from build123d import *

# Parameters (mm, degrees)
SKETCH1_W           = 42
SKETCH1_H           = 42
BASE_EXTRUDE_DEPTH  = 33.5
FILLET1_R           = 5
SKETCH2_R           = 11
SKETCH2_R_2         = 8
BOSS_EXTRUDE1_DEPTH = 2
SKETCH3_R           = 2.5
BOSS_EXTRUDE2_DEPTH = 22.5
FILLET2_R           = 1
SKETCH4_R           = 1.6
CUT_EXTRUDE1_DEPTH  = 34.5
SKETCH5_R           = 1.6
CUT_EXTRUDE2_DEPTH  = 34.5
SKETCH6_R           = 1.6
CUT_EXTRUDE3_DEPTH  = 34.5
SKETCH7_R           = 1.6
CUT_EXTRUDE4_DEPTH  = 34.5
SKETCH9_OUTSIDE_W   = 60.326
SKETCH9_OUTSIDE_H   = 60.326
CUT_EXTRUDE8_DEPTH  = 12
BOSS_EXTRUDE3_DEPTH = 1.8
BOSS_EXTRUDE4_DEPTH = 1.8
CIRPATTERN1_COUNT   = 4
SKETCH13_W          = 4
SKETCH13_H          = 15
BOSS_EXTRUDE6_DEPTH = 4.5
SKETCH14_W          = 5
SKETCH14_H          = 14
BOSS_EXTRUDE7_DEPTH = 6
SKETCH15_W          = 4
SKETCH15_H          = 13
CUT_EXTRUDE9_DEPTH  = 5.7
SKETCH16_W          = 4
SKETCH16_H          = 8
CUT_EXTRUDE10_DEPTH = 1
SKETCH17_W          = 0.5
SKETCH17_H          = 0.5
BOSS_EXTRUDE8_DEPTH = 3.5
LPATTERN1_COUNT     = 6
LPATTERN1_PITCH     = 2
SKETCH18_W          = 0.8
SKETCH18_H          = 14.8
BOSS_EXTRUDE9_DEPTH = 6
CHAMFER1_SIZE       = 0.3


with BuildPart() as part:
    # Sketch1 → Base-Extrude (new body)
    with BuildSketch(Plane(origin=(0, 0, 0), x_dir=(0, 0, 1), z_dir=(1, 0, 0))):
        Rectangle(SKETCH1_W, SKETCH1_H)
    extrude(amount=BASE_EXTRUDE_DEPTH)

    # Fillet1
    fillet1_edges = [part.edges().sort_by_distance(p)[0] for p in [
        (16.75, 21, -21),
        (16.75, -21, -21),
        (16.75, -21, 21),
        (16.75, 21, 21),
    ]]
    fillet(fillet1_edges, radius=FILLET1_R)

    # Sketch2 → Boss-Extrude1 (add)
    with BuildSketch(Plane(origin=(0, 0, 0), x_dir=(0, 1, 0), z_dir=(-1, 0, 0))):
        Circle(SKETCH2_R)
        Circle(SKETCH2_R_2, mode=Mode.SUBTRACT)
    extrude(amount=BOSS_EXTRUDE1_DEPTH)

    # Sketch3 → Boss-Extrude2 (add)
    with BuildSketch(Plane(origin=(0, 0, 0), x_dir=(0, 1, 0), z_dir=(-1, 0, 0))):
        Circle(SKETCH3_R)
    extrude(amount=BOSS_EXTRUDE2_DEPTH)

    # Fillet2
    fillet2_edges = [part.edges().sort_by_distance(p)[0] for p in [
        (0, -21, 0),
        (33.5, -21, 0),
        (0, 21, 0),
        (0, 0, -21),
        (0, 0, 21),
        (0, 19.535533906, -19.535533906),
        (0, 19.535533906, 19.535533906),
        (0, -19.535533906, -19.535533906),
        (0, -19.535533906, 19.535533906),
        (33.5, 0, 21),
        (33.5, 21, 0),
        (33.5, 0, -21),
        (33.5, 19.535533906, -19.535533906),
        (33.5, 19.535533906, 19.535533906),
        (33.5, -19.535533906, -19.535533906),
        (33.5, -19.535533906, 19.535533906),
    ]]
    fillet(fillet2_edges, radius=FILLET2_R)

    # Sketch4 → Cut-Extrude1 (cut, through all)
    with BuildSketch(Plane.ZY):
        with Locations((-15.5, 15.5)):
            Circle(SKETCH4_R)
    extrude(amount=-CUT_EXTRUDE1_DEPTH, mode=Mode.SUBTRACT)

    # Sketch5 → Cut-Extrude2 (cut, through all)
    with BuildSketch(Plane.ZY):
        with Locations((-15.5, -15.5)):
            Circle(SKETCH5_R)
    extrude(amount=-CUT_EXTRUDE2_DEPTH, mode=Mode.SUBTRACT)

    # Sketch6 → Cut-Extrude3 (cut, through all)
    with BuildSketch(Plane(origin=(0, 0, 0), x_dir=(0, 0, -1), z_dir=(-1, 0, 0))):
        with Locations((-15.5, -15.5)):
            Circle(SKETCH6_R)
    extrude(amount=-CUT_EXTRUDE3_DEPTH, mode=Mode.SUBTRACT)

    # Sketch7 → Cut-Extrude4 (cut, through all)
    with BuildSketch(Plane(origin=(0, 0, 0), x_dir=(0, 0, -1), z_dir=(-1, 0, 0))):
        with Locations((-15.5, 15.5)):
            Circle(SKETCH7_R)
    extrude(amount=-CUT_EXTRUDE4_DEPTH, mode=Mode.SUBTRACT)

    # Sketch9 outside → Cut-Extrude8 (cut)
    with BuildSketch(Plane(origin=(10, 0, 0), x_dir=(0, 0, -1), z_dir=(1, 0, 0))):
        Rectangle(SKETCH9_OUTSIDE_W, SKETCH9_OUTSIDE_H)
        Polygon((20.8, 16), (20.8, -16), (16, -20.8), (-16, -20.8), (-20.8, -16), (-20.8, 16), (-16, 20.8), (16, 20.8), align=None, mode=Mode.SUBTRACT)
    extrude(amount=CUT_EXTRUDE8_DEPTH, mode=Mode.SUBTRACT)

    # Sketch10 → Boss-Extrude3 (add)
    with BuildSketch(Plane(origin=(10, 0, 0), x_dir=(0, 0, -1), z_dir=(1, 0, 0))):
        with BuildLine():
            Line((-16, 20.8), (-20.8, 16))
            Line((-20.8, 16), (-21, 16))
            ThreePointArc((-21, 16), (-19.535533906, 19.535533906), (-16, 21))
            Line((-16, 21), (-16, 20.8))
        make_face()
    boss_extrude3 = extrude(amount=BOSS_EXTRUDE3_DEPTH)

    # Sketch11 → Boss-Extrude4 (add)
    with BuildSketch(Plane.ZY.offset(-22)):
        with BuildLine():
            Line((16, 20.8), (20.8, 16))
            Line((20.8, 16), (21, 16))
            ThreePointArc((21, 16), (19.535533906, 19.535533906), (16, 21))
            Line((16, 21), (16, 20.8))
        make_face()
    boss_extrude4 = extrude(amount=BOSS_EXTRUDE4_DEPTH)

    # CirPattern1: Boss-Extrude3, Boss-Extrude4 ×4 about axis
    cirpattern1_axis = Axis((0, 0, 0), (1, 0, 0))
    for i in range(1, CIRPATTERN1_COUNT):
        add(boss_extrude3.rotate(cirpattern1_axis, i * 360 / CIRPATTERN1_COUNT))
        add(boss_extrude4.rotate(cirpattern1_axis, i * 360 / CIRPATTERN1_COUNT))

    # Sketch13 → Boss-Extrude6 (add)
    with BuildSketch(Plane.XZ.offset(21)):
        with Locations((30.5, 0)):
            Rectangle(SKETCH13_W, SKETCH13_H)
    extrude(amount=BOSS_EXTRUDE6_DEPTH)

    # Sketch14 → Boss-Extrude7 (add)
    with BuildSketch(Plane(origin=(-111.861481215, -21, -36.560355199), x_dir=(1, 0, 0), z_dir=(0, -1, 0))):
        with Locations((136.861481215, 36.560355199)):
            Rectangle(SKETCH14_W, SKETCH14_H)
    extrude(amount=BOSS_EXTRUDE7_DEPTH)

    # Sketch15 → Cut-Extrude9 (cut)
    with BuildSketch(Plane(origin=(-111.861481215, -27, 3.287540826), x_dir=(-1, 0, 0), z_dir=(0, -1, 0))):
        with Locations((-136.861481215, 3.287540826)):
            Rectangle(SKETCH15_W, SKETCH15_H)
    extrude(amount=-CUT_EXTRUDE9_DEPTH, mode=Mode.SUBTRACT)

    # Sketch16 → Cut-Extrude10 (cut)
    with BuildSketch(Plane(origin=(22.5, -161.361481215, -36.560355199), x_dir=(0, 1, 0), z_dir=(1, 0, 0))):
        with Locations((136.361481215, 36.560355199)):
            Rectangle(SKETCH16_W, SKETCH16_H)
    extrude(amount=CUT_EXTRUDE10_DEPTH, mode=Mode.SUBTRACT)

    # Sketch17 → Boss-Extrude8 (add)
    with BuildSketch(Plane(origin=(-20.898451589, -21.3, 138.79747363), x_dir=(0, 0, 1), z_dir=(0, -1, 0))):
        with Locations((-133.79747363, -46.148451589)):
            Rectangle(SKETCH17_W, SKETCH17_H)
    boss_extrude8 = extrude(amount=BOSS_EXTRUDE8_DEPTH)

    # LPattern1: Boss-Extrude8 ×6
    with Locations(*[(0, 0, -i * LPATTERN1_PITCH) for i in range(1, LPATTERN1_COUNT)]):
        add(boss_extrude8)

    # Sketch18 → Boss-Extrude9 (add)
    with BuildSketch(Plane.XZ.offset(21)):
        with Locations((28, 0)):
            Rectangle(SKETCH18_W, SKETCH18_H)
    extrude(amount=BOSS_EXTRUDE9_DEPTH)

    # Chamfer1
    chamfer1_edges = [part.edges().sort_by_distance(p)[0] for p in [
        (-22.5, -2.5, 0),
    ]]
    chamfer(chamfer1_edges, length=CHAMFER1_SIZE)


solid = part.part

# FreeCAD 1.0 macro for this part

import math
import FreeCAD as App
import Part
import Sketcher
Q = App.Units.Quantity


def edges_at(feature, points):
    """Names of the edges that pass closest to the given points."""
    edges = feature.Shape.Edges
    near = lambda p: min(range(len(edges)), key=lambda i: edges[i].distToShape(Part.Vertex(*p))[0])
    return sorted({f"Edge{near(p) + 1}" for p in points})

doc = App.newDocument("Part")
body = doc.addObject("PartDesign::Body", "Body")

# Sketch on YZ plane
sketch1 = doc.addObject("Sketcher::SketchObject", "Sketch")
body.addObject(sketch1)
sketch1.AttachmentSupport = (doc.YZ_Plane, [""])
sketch1.MapMode = "FlatFace"
sketch1.addGeometry([
    Part.LineSegment(App.Vector(-21, -21, 0), App.Vector(21, -21, 0)),
    Part.LineSegment(App.Vector(21, -21, 0), App.Vector(21, 21, 0)),
    Part.LineSegment(App.Vector(21, 21, 0), App.Vector(-21, 21, 0)),
    Part.LineSegment(App.Vector(-21, 21, 0), App.Vector(-21, -21, 0)),
], False)
sketch1.addConstraint([
    Sketcher.Constraint("Coincident", 0, 2, 1, 1),
    Sketcher.Constraint("Coincident", 1, 2, 2, 1),
    Sketcher.Constraint("Coincident", 2, 2, 3, 1),
    Sketcher.Constraint("Coincident", 3, 2, 0, 1),
    Sketcher.Constraint("Horizontal", 0),
    Sketcher.Constraint("Vertical", 1),
    Sketcher.Constraint("Horizontal", 2),
    Sketcher.Constraint("Vertical", 3),
    Sketcher.Constraint("Symmetric", 0, 2, 2, 2, -1, 1),
    Sketcher.Constraint("Equal", 2, 1),
    Sketcher.Constraint("DistanceX", 0, 1, 0, 2, Q("42 mm")),
])
pad1 = doc.addObject("PartDesign::Pad", "Pad")
body.addObject(pad1)
pad1.Profile = sketch1
pad1.Length = 33.5
doc.recompute()

fillet = doc.addObject("PartDesign::Fillet", "Fillet")
body.addObject(fillet)
fillet.Base = (pad1, edges_at(pad1, [
    (16.75, 21, -21),
    (16.75, -21, -21),
    (16.75, -21, 21),
    (16.75, 21, 21),
]))
fillet.Radius = 5

# Sketch on YZ plane
sketch2 = doc.addObject("Sketcher::SketchObject", "Sketch001")
body.addObject(sketch2)
sketch2.AttachmentSupport = (doc.YZ_Plane, [""])
sketch2.MapMode = "FlatFace"
sketch2.addGeometry([
    Part.Circle(App.Vector(0, 0, 0), App.Vector(0, 0, 1), 11),
    Part.Circle(App.Vector(0, 0, 0), App.Vector(0, 0, 1), 8),
], False)
sketch2.addConstraint([
    Sketcher.Constraint("Coincident", 0, 3, -1, 1),
    Sketcher.Constraint("Coincident", 1, 3, -1, 1),
    Sketcher.Constraint("Diameter", 0, Q("22 mm")),
    Sketcher.Constraint("Diameter", 1, Q("16 mm")),
])
pad2 = doc.addObject("PartDesign::Pad", "Pad001")
body.addObject(pad2)
pad2.Profile = sketch2
pad2.Length = 2
pad2.Reversed = True

# Sketch on YZ plane
sketch3 = doc.addObject("Sketcher::SketchObject", "Sketch002")
body.addObject(sketch3)
sketch3.AttachmentSupport = (doc.YZ_Plane, [""])
sketch3.MapMode = "FlatFace"
sketch3.addGeometry(Part.Circle(App.Vector(0, 0, 0), App.Vector(0, 0, 1), 2.5), False)
sketch3.addConstraint([
    Sketcher.Constraint("Coincident", 0, 3, -1, 1),
    Sketcher.Constraint("Diameter", 0, Q("5 mm")),
])
pad3 = doc.addObject("PartDesign::Pad", "Pad002")
body.addObject(pad3)
pad3.Profile = sketch3
pad3.Length = 22.5
pad3.Reversed = True
doc.recompute()

fillet2 = doc.addObject("PartDesign::Fillet", "Fillet001")
body.addObject(fillet2)
fillet2.Base = (pad3, edges_at(pad3, [
    (0, -21, 0),
    (33.5, -21, 0),
    (0, 21, 0),
    (0, 0, -21),
    (0, 0, 21),
    (0, 19.536, -19.536),
    (0, 19.536, 19.536),
    (0, -19.536, -19.536),
    (0, -19.536, 19.536),
    (33.5, 0, 21),
    (33.5, 21, 0),
    (33.5, 0, -21),
    (33.5, 19.536, -19.536),
    (33.5, 19.536, 19.536),
    (33.5, -19.536, -19.536),
    (33.5, -19.536, 19.536),
]))
fillet2.Radius = 1

# Sketch on YZ plane
sketch4 = doc.addObject("Sketcher::SketchObject", "Sketch003")
body.addObject(sketch4)
sketch4.AttachmentSupport = (doc.YZ_Plane, [""])
sketch4.MapMode = "FlatFace"
sketch4.addGeometry(Part.Circle(App.Vector(15.5, -15.5, 0), App.Vector(0, 0, 1), 1.6), False)
sketch4.addConstraint([
    Sketcher.Constraint("Diameter", 0, Q("3.2 mm")),
    Sketcher.Constraint("DistanceX", -1, 1, 0, 3, Q("15.5 mm")),
    Sketcher.Constraint("DistanceY", 0, 3, -1, 1, Q("15.5 mm")),
])
pocket1 = doc.addObject("PartDesign::Pocket", "Pocket")
body.addObject(pocket1)
pocket1.Profile = sketch4
pocket1.Type = "ThroughAll"
pocket1.Reversed = True

# Sketch on YZ plane
sketch5 = doc.addObject("Sketcher::SketchObject", "Sketch004")
body.addObject(sketch5)
sketch5.AttachmentSupport = (doc.YZ_Plane, [""])
sketch5.MapMode = "FlatFace"
sketch5.addGeometry(Part.Circle(App.Vector(-15.5, -15.5, 0), App.Vector(0, 0, 1), 1.6), False)
sketch5.addConstraint([
    Sketcher.Constraint("Diameter", 0, Q("3.2 mm")),
    Sketcher.Constraint("DistanceX", 0, 3, -1, 1, Q("15.5 mm")),
    Sketcher.Constraint("DistanceY", 0, 3, -1, 1, Q("15.5 mm")),
])
pocket2 = doc.addObject("PartDesign::Pocket", "Pocket001")
body.addObject(pocket2)
pocket2.Profile = sketch5
pocket2.Type = "ThroughAll"
pocket2.Reversed = True

# Sketch on YZ plane
sketch6 = doc.addObject("Sketcher::SketchObject", "Sketch005")
body.addObject(sketch6)
sketch6.AttachmentSupport = (doc.YZ_Plane, [""])
sketch6.MapMode = "FlatFace"
sketch6.addGeometry(Part.Circle(App.Vector(15.5, 15.5, 0), App.Vector(0, 0, 1), 1.6), False)
sketch6.addConstraint([
    Sketcher.Constraint("Diameter", 0, Q("3.2 mm")),
    Sketcher.Constraint("DistanceX", -1, 1, 0, 3, Q("15.5 mm")),
    Sketcher.Constraint("DistanceY", -1, 1, 0, 3, Q("15.5 mm")),
])
pocket3 = doc.addObject("PartDesign::Pocket", "Pocket002")
body.addObject(pocket3)
pocket3.Profile = sketch6
pocket3.Type = "ThroughAll"
pocket3.Reversed = True

# Sketch on YZ plane
sketch7 = doc.addObject("Sketcher::SketchObject", "Sketch006")
body.addObject(sketch7)
sketch7.AttachmentSupport = (doc.YZ_Plane, [""])
sketch7.MapMode = "FlatFace"
sketch7.addGeometry(Part.Circle(App.Vector(-15.5, 15.5, 0), App.Vector(0, 0, 1), 1.6), False)
sketch7.addConstraint([
    Sketcher.Constraint("Diameter", 0, Q("3.2 mm")),
    Sketcher.Constraint("DistanceX", 0, 3, -1, 1, Q("15.5 mm")),
    Sketcher.Constraint("DistanceY", -1, 1, 0, 3, Q("15.5 mm")),
])
pocket4 = doc.addObject("PartDesign::Pocket", "Pocket003")
body.addObject(pocket4)
pocket4.Profile = sketch7
pocket4.Type = "ThroughAll"
pocket4.Reversed = True

# Sketch on YZ plane
sketch8 = doc.addObject("Sketcher::SketchObject", "Sketch007")
body.addObject(sketch8)
sketch8.AttachmentSupport = (doc.YZ_Plane, [""])
sketch8.MapMode = "FlatFace"
sketch8.AttachmentOffset = App.Placement(App.Vector(0, 0, 10), App.Rotation())
sketch8.addGeometry([
    Part.LineSegment(App.Vector(30, 30, 0), App.Vector(-30, 30, 0)),  # 0
    Part.LineSegment(App.Vector(-30, 30, 0), App.Vector(-30, -30, 0)),  # 1
    Part.LineSegment(App.Vector(-30, -30, 0), App.Vector(30, -30, 0)),  # 2
    Part.LineSegment(App.Vector(30, -30, 0), App.Vector(30, 30, 0)),  # 3
    Part.LineSegment(App.Vector(21, -16, 0), App.Vector(16, -21, 0)),  # 4
    Part.LineSegment(App.Vector(16, -21, 0), App.Vector(-16, -21, 0)),  # 5
    Part.LineSegment(App.Vector(-16, -21, 0), App.Vector(-21, -16, 0)),  # 6
    Part.LineSegment(App.Vector(-21, -16, 0), App.Vector(-21, 16, 0)),  # 7
    Part.LineSegment(App.Vector(-21, 16, 0), App.Vector(-16, 21, 0)),  # 8
    Part.LineSegment(App.Vector(-16, 21, 0), App.Vector(16, 21, 0)),  # 9
    Part.LineSegment(App.Vector(16, 21, 0), App.Vector(21, 16, 0)),  # 10
    Part.LineSegment(App.Vector(21, 16, 0), App.Vector(21, -16, 0)),  # 11
], False)
sketch8.addConstraint([
    Sketcher.Constraint("Coincident", 0, 2, 1, 1),
    Sketcher.Constraint("Coincident", 1, 2, 2, 1),
    Sketcher.Constraint("Coincident", 2, 2, 3, 1),
    Sketcher.Constraint("Coincident", 3, 2, 0, 1),
    Sketcher.Constraint("Coincident", 4, 2, 5, 1),
    Sketcher.Constraint("Coincident", 5, 2, 6, 1),
    Sketcher.Constraint("Coincident", 6, 2, 7, 1),
    Sketcher.Constraint("Coincident", 7, 2, 8, 1),
    Sketcher.Constraint("Coincident", 8, 2, 9, 1),
    Sketcher.Constraint("Coincident", 9, 2, 10, 1),
    Sketcher.Constraint("Coincident", 10, 2, 11, 1),
    Sketcher.Constraint("Coincident", 11, 2, 4, 1),
    Sketcher.Constraint("Horizontal", 0),
    Sketcher.Constraint("Vertical", 1),
    Sketcher.Constraint("Horizontal", 2),
    Sketcher.Constraint("Vertical", 3),
    Sketcher.Constraint("Horizontal", 5),
    Sketcher.Constraint("Vertical", 7),
    Sketcher.Constraint("Horizontal", 9),
    Sketcher.Constraint("Vertical", 11),
    Sketcher.Constraint("Symmetric", 0, 2, 2, 2, -1, 1),
    Sketcher.Constraint("Symmetric", 4, 2, 8, 2, -1, 1),
    Sketcher.Constraint("Symmetric", 6, 2, 10, 2, -1, 1),
    Sketcher.Constraint("Perpendicular", 4, 6),
    Sketcher.Constraint("Perpendicular", 6, 8),
    Sketcher.Constraint("Perpendicular", 8, 10),
    Sketcher.Constraint("Horizontal", 7, 2, 10, 2),
    Sketcher.Constraint("Vertical", 5, 2, 8, 2),
    Sketcher.Constraint("Equal", 2, 1),
    Sketcher.Constraint("Equal", 9, 7),
    Sketcher.Constraint("DistanceX", 5, 2, 5, 1, Q("32 mm")),
    Sketcher.Constraint("DistanceY", 4, 2, -1, 1, Q("20.8 mm")),
    Sketcher.Constraint("DistanceX", 0, 2, 0, 1, Q("60.326 mm")),
])
pocket5 = doc.addObject("PartDesign::Pocket", "Pocket004")
body.addObject(pocket5)
pocket5.Profile = sketch8
pocket5.Length = 12
pocket5.Reversed = True

# Sketch on YZ plane
sketch9 = doc.addObject("Sketcher::SketchObject", "Sketch008")
body.addObject(sketch9)
sketch9.AttachmentSupport = (doc.YZ_Plane, [""])
sketch9.MapMode = "FlatFace"
sketch9.AttachmentOffset = App.Placement(App.Vector(0, 0, 10), App.Rotation())
sketch9.addGeometry([
    Part.LineSegment(App.Vector(16, 20.8, 0), App.Vector(20.8, 16, 0)),
    Part.LineSegment(App.Vector(20.8, 16, 0), App.Vector(21, 16, 0)),
    Part.ArcOfCircle(Part.Circle(App.Vector(16, 16, 0), App.Vector(0, 0, 1), 5), math.radians(0), math.radians(90)),
    Part.LineSegment(App.Vector(16, 21, 0), App.Vector(16, 20.8, 0)),
], False)
sketch9.addConstraint([
    Sketcher.Constraint("Coincident", 0, 2, 1, 1),
    Sketcher.Constraint("Coincident", 1, 2, 2, 1),
    Sketcher.Constraint("Coincident", 2, 2, 3, 1),
    Sketcher.Constraint("Coincident", 3, 2, 0, 1),
    Sketcher.Constraint("Horizontal", 1),
    Sketcher.Constraint("Vertical", 3),
    Sketcher.Constraint("Horizontal", 2, 3, 0, 2),
    Sketcher.Constraint("Equal", 1, 3),
    Sketcher.Constraint("Radius", 2, Q("5 mm")),
    Sketcher.Constraint("Angle", 0, Q("-45 deg")),
    Sketcher.Constraint("DistanceX", 1, 1, 1, 2, Q("0.2 mm")),
    Sketcher.Constraint("DistanceX", -1, 1, 2, 3, Q("16 mm")),
    Sketcher.Constraint("DistanceY", -1, 1, 2, 3, Q("16 mm")),
])
pad4 = doc.addObject("PartDesign::Pad", "Pad003")
body.addObject(pad4)
pad4.Profile = sketch9
pad4.Length = 1.8

# Sketch on YZ plane
sketch10 = doc.addObject("Sketcher::SketchObject", "Sketch009")
body.addObject(sketch10)
sketch10.AttachmentSupport = (doc.YZ_Plane, [""])
sketch10.MapMode = "FlatFace"
sketch10.AttachmentOffset = App.Placement(App.Vector(0, 0, 22), App.Rotation())
sketch10.addGeometry([
    Part.LineSegment(App.Vector(20.8, 16, 0), App.Vector(16, 20.8, 0)),
    Part.LineSegment(App.Vector(16, 20.8, 0), App.Vector(16, 21, 0)),
    Part.ArcOfCircle(Part.Circle(App.Vector(16, 16, 0), App.Vector(0, 0, 1), 5), math.radians(0), math.radians(90)),
    Part.LineSegment(App.Vector(21, 16, 0), App.Vector(20.8, 16, 0)),
], False)
sketch10.addConstraint([
    Sketcher.Constraint("Coincident", 0, 2, 1, 1),
    Sketcher.Constraint("Coincident", 1, 2, 2, 2),
    Sketcher.Constraint("Coincident", 2, 1, 3, 1),
    Sketcher.Constraint("Coincident", 3, 2, 0, 1),
    Sketcher.Constraint("Vertical", 1),
    Sketcher.Constraint("Horizontal", 3),
    Sketcher.Constraint("Vertical", 2, 3, 0, 2),
    Sketcher.Constraint("Equal", 3, 1),
    Sketcher.Constraint("Radius", 2, Q("5 mm")),
    Sketcher.Constraint("Angle", 0, Q("135 deg")),
    Sketcher.Constraint("DistanceX", 3, 2, 3, 1, Q("0.2 mm")),
    Sketcher.Constraint("DistanceX", -1, 1, 2, 3, Q("16 mm")),
    Sketcher.Constraint("DistanceY", -1, 1, 2, 3, Q("16 mm")),
])
pad5 = doc.addObject("PartDesign::Pad", "Pad004")
body.addObject(pad5)
pad5.Profile = sketch10
pad5.Length = 1.8
pad5.Reversed = True
doc.recompute()

polarpattern = doc.addObject("PartDesign::PolarPattern", "PolarPattern")
body.addObject(polarpattern)
polarpattern.Originals = [pad4, pad5]
polarpattern.Axis = (doc.X_Axis, [""])
polarpattern.Angle = 360
polarpattern.Occurrences = 4
body.Tip = polarpattern

# Sketch on XZ plane
sketch11 = doc.addObject("Sketcher::SketchObject", "Sketch010")
body.addObject(sketch11)
sketch11.AttachmentSupport = (doc.XZ_Plane, [""])
sketch11.MapMode = "FlatFace"
sketch11.AttachmentOffset = App.Placement(App.Vector(0, 0, 21), App.Rotation())
sketch11.addGeometry([
    Part.LineSegment(App.Vector(28.5, 7.5, 0), App.Vector(28.5, -7.5, 0)),
    Part.LineSegment(App.Vector(28.5, -7.5, 0), App.Vector(32.5, -7.5, 0)),
    Part.LineSegment(App.Vector(32.5, -7.5, 0), App.Vector(32.5, 7.5, 0)),
    Part.LineSegment(App.Vector(32.5, 7.5, 0), App.Vector(28.5, 7.5, 0)),
], False)
sketch11.addConstraint([
    Sketcher.Constraint("Coincident", 0, 2, 1, 1),
    Sketcher.Constraint("Coincident", 1, 2, 2, 1),
    Sketcher.Constraint("Coincident", 2, 2, 3, 1),
    Sketcher.Constraint("Coincident", 3, 2, 0, 1),
    Sketcher.Constraint("Vertical", 0),
    Sketcher.Constraint("Horizontal", 1),
    Sketcher.Constraint("Vertical", 2),
    Sketcher.Constraint("Horizontal", 3),
    Sketcher.Constraint("DistanceX", 1, 1, 1, 2, Q("4 mm")),
    Sketcher.Constraint("DistanceY", 0, 2, 0, 1, Q("15 mm")),
    Sketcher.Constraint("DistanceX", -1, 1, 0, 2, Q("28.5 mm")),
    Sketcher.Constraint("DistanceY", 0, 2, -1, 1, Q("7.5 mm")),
])
pad6 = doc.addObject("PartDesign::Pad", "Pad005")
body.addObject(pad6)
pad6.Profile = sketch11
pad6.Length = 4.5

# Sketch on XZ plane
sketch12 = doc.addObject("Sketcher::SketchObject", "Sketch011")
body.addObject(sketch12)
sketch12.AttachmentSupport = (doc.XZ_Plane, [""])
sketch12.MapMode = "FlatFace"
sketch12.AttachmentOffset = App.Placement(App.Vector(0, 0, 21), App.Rotation())
sketch12.addGeometry([
    Part.LineSegment(App.Vector(22, 7, 0), App.Vector(22, -7, 0)),
    Part.LineSegment(App.Vector(22, -7, 0), App.Vector(28, -7, 0)),
    Part.LineSegment(App.Vector(28, -7, 0), App.Vector(28, 7, 0)),
    Part.LineSegment(App.Vector(28, 7, 0), App.Vector(22, 7, 0)),
], False)
sketch12.addConstraint([
    Sketcher.Constraint("Coincident", 0, 2, 1, 1),
    Sketcher.Constraint("Coincident", 1, 2, 2, 1),
    Sketcher.Constraint("Coincident", 2, 2, 3, 1),
    Sketcher.Constraint("Coincident", 3, 2, 0, 1),
    Sketcher.Constraint("Vertical", 0),
    Sketcher.Constraint("Horizontal", 1),
    Sketcher.Constraint("Vertical", 2),
    Sketcher.Constraint("Horizontal", 3),
    Sketcher.Constraint("DistanceX", 1, 1, 1, 2, Q("5 mm")),
    Sketcher.Constraint("DistanceY", 0, 2, 0, 1, Q("14 mm")),
    Sketcher.Constraint("DistanceY", 0, 2, -1, 1, Q("7 mm")),
    Sketcher.Constraint("DistanceX", -1, 1, 0, 2, Q("22.5 mm")),
])
pad7 = doc.addObject("PartDesign::Pad", "Pad006")
body.addObject(pad7)
pad7.Profile = sketch12
pad7.Length = 6

# Sketch on XZ plane
sketch13 = doc.addObject("Sketcher::SketchObject", "Sketch012")
body.addObject(sketch13)
sketch13.AttachmentSupport = (doc.XZ_Plane, [""])
sketch13.MapMode = "FlatFace"
sketch13.AttachmentOffset = App.Placement(App.Vector(0, 0, 27), App.Rotation())
sketch13.addGeometry([
    Part.LineSegment(App.Vector(27, -6.5, 0), App.Vector(27, 6.5, 0)),
    Part.LineSegment(App.Vector(27, 6.5, 0), App.Vector(23, 6.5, 0)),
    Part.LineSegment(App.Vector(23, 6.5, 0), App.Vector(23, -6.5, 0)),
    Part.LineSegment(App.Vector(23, -6.5, 0), App.Vector(27, -6.5, 0)),
], False)
sketch13.addConstraint([
    Sketcher.Constraint("Coincident", 0, 2, 1, 1),
    Sketcher.Constraint("Coincident", 1, 2, 2, 1),
    Sketcher.Constraint("Coincident", 2, 2, 3, 1),
    Sketcher.Constraint("Coincident", 3, 2, 0, 1),
    Sketcher.Constraint("Vertical", 0),
    Sketcher.Constraint("Horizontal", 1),
    Sketcher.Constraint("Vertical", 2),
    Sketcher.Constraint("Horizontal", 3),
    Sketcher.Constraint("DistanceX", 1, 2, 1, 1, Q("4 mm")),
    Sketcher.Constraint("DistanceY", 0, 1, 0, 2, Q("13 mm")),
    Sketcher.Constraint("DistanceX", -1, 1, 0, 2, Q("27 mm")),
    Sketcher.Constraint("DistanceY", -1, 1, 0, 2, Q("6.5 mm")),
])
pocket6 = doc.addObject("PartDesign::Pocket", "Pocket005")
body.addObject(pocket6)
pocket6.Profile = sketch13
pocket6.Length = 5.7

# Sketch on YZ plane
sketch14 = doc.addObject("Sketcher::SketchObject", "Sketch013")
body.addObject(sketch14)
sketch14.AttachmentSupport = (doc.YZ_Plane, [""])
sketch14.MapMode = "FlatFace"
sketch14.AttachmentOffset = App.Placement(App.Vector(0, 0, 22.5), App.Rotation())
sketch14.addGeometry([
    Part.LineSegment(App.Vector(-27, 4, 0), App.Vector(-27, -4, 0)),
    Part.LineSegment(App.Vector(-27, -4, 0), App.Vector(-23, -4, 0)),
    Part.LineSegment(App.Vector(-23, -4, 0), App.Vector(-23, 4, 0)),
    Part.LineSegment(App.Vector(-23, 4, 0), App.Vector(-27, 4, 0)),
], False)
sketch14.addConstraint([
    Sketcher.Constraint("Coincident", 0, 2, 1, 1),
    Sketcher.Constraint("Coincident", 1, 2, 2, 1),
    Sketcher.Constraint("Coincident", 2, 2, 3, 1),
    Sketcher.Constraint("Coincident", 3, 2, 0, 1),
    Sketcher.Constraint("Vertical", 0),
    Sketcher.Constraint("Horizontal", 1),
    Sketcher.Constraint("Vertical", 2),
    Sketcher.Constraint("Horizontal", 3),
    Sketcher.Constraint("DistanceX", 1, 1, 1, 2, Q("4 mm")),
    Sketcher.Constraint("DistanceY", 0, 2, 0, 1, Q("8 mm")),
    Sketcher.Constraint("DistanceX", 0, 2, -1, 1, Q("27 mm")),
    Sketcher.Constraint("DistanceY", 0, 2, -1, 1, Q("4 mm")),
])
pocket7 = doc.addObject("PartDesign::Pocket", "Pocket006")
body.addObject(pocket7)
pocket7.Profile = sketch14
pocket7.Length = 1
pocket7.Reversed = True

# Sketch on XZ plane
sketch15 = doc.addObject("Sketcher::SketchObject", "Sketch014")
body.addObject(sketch15)
sketch15.AttachmentSupport = (doc.XZ_Plane, [""])
sketch15.MapMode = "FlatFace"
sketch15.AttachmentOffset = App.Placement(App.Vector(0, 0, 21.3), App.Rotation())
sketch15.addGeometry([
    Part.LineSegment(App.Vector(25, 4.8, 0), App.Vector(25.5, 4.8, 0)),
    Part.LineSegment(App.Vector(25.5, 4.8, 0), App.Vector(25.5, 5.2, 0)),
    Part.LineSegment(App.Vector(25.5, 5.2, 0), App.Vector(25, 5.2, 0)),
    Part.LineSegment(App.Vector(25, 5.2, 0), App.Vector(25, 4.8, 0)),
], False)
sketch15.addConstraint([
    Sketcher.Constraint("Coincident", 0, 2, 1, 1),
    Sketcher.Constraint("Coincident", 1, 2, 2, 1),
    Sketcher.Constraint("Coincident", 2, 2, 3, 1),
    Sketcher.Constraint("Coincident", 3, 2, 0, 1),
    Sketcher.Constraint("Horizontal", 0),
    Sketcher.Constraint("Vertical", 1),
    Sketcher.Constraint("Horizontal", 2),
    Sketcher.Constraint("Vertical", 3),
    Sketcher.Constraint("Equal", 2, 1),
    Sketcher.Constraint("DistanceX", 0, 1, 0, 2, Q("0.5 mm")),
    Sketcher.Constraint("DistanceX", -1, 1, 2, 2, Q("25 mm")),
    Sketcher.Constraint("DistanceY", -1, 1, 0, 2, Q("4.75 mm")),
])
pad8 = doc.addObject("PartDesign::Pad", "Pad007")
body.addObject(pad8)
pad8.Profile = sketch15
pad8.Length = 3.5
doc.recompute()

linearpattern = doc.addObject("PartDesign::LinearPattern", "LinearPattern")
body.addObject(linearpattern)
linearpattern.Originals = [pad8]
linearpattern.Direction = (doc.Z_Axis, [""])
linearpattern.Mode = "offset"
linearpattern.Offset = 2
linearpattern.Occurrences = 6
linearpattern.Reversed = True
body.Tip = linearpattern

# Sketch on XZ plane
sketch16 = doc.addObject("Sketcher::SketchObject", "Sketch015")
body.addObject(sketch16)
sketch16.AttachmentSupport = (doc.XZ_Plane, [""])
sketch16.MapMode = "FlatFace"
sketch16.AttachmentOffset = App.Placement(App.Vector(0, 0, 21), App.Rotation())
sketch16.addGeometry([
    Part.LineSegment(App.Vector(27.6, 7.4, 0), App.Vector(27.6, -7.4, 0)),
    Part.LineSegment(App.Vector(27.6, -7.4, 0), App.Vector(28.4, -7.4, 0)),
    Part.LineSegment(App.Vector(28.4, -7.4, 0), App.Vector(28.4, 7.4, 0)),
    Part.LineSegment(App.Vector(28.4, 7.4, 0), App.Vector(27.6, 7.4, 0)),
], False)
sketch16.addConstraint([
    Sketcher.Constraint("Coincident", 0, 2, 1, 1),
    Sketcher.Constraint("Coincident", 1, 2, 2, 1),
    Sketcher.Constraint("Coincident", 2, 2, 3, 1),
    Sketcher.Constraint("Coincident", 3, 2, 0, 1),
    Sketcher.Constraint("Vertical", 0),
    Sketcher.Constraint("Horizontal", 1),
    Sketcher.Constraint("Vertical", 2),
    Sketcher.Constraint("Horizontal", 3),
    Sketcher.Constraint("DistanceX", 1, 1, 1, 2, Q("0.8 mm")),
    Sketcher.Constraint("DistanceY", 0, 2, 0, 1, Q("14.8 mm")),
    Sketcher.Constraint("DistanceX", -1, 1, 0, 2, Q("27.6 mm")),
    Sketcher.Constraint("DistanceY", 0, 2, -1, 1, Q("7.4 mm")),
])
pad9 = doc.addObject("PartDesign::Pad", "Pad008")
body.addObject(pad9)
pad9.Profile = sketch16
pad9.Length = 6
doc.recompute()

chamfer = doc.addObject("PartDesign::Chamfer", "Chamfer")
body.addObject(chamfer)
chamfer.Base = (pad9, edges_at(pad9, [(-22.5, -2.5, 0)]))
chamfer.Size = 0.3

doc.recompute()
